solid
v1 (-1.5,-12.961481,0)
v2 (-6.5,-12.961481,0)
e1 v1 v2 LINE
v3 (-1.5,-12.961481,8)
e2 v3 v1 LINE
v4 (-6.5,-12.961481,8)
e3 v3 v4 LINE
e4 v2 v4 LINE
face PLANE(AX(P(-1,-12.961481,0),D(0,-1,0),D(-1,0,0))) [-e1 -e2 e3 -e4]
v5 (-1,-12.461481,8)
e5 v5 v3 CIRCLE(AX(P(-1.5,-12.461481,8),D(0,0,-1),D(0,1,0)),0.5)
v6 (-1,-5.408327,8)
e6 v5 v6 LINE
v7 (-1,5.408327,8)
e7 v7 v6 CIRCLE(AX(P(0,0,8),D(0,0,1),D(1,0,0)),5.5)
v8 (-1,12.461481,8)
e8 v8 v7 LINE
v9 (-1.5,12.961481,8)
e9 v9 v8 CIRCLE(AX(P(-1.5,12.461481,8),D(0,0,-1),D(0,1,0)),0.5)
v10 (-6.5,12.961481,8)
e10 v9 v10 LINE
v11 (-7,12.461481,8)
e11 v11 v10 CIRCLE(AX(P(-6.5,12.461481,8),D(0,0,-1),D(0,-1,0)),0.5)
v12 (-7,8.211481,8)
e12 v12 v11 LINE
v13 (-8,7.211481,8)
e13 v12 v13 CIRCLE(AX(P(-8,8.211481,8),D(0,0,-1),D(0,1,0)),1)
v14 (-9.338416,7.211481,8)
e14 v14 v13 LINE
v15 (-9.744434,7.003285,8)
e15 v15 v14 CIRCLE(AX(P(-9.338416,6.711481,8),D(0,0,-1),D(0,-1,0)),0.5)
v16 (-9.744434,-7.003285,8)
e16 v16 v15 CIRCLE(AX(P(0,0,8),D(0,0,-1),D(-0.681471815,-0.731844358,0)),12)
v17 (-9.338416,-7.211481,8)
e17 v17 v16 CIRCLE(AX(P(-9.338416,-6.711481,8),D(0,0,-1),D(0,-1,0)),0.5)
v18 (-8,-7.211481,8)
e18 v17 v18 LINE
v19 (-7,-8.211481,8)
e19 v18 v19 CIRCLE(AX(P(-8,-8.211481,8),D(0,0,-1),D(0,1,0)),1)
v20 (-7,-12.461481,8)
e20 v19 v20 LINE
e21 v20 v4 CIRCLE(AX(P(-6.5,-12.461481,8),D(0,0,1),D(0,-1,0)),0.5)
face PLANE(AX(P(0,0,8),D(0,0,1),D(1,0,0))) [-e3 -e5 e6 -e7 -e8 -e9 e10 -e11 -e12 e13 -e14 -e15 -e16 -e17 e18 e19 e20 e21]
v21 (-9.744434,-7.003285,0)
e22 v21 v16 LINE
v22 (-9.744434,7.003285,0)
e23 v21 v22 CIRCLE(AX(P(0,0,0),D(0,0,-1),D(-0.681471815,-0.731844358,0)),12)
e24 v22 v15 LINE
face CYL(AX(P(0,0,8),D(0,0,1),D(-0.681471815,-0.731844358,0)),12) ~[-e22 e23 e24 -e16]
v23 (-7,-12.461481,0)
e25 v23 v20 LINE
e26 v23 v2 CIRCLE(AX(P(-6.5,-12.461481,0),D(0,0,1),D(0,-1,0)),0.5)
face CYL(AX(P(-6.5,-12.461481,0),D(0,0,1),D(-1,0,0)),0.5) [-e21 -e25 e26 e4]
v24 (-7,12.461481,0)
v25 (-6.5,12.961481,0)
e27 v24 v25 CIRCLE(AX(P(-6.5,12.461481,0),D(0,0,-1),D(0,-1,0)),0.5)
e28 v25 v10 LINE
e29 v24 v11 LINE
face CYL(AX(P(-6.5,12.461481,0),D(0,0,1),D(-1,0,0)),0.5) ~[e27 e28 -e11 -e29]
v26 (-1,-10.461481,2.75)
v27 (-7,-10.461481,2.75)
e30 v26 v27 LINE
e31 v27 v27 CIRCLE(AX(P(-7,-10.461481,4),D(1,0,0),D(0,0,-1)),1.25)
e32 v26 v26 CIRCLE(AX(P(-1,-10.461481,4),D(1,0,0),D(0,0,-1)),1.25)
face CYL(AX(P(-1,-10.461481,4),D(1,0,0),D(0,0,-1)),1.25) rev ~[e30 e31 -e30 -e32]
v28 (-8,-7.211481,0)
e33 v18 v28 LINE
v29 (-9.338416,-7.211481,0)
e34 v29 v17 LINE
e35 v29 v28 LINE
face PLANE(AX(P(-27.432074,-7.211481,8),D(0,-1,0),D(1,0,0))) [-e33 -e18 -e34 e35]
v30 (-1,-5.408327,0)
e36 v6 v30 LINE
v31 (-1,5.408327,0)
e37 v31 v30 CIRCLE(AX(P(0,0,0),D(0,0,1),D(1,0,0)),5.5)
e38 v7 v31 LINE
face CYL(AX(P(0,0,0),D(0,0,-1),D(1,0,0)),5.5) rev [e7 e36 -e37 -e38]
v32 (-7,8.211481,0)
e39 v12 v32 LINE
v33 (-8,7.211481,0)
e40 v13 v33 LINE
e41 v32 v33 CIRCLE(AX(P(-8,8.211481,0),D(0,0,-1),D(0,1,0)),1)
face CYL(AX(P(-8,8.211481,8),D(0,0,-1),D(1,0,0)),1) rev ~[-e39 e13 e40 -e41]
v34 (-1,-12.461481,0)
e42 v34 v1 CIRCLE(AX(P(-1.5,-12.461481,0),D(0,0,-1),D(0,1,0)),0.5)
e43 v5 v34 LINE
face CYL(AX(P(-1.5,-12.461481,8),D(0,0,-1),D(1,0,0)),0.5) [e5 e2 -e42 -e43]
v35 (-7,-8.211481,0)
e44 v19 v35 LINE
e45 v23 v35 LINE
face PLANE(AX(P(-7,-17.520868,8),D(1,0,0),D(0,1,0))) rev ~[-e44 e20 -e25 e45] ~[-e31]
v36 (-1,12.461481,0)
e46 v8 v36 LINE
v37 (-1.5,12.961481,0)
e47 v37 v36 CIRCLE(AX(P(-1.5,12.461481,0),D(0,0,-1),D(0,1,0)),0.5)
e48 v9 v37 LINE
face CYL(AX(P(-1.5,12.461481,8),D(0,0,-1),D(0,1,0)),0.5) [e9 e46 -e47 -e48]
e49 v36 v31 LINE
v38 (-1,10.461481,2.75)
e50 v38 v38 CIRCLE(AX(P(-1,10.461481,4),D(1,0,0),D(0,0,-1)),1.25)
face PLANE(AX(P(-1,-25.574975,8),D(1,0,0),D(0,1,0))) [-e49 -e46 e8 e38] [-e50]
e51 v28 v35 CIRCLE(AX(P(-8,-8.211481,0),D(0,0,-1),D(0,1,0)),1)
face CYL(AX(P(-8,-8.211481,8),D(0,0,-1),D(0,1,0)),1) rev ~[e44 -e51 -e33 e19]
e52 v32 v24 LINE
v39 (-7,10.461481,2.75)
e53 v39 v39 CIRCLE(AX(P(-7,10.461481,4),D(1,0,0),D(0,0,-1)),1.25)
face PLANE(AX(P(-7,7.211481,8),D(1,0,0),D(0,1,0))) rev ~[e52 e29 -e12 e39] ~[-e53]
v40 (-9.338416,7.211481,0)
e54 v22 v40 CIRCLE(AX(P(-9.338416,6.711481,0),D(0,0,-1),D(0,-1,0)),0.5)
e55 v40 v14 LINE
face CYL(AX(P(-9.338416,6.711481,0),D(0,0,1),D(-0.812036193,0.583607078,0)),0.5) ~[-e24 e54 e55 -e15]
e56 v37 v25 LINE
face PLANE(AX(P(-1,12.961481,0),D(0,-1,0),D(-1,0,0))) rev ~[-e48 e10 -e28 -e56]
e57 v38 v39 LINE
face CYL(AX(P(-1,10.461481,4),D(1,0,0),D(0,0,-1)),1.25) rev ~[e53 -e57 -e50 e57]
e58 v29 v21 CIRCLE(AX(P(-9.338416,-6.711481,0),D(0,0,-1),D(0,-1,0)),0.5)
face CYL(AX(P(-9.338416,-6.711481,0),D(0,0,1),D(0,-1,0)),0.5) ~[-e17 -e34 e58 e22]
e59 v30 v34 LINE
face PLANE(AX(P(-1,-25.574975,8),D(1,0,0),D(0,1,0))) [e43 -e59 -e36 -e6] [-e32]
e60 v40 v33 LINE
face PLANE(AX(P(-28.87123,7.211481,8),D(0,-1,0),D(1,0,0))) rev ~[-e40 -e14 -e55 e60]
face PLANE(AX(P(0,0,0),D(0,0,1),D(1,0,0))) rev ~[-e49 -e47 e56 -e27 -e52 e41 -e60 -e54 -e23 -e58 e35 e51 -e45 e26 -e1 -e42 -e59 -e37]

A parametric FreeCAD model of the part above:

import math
import FreeCAD as App
import Part
import Sketcher
from FreeCAD import Vector
Q = App.Units.Quantity


def edges_at(feature, points):
    """Names of the edges that pass closest to the given points."""
    edges = feature.Shape.Edges
    near = lambda p: min(range(len(edges)), key=lambda i: edges[i].distToShape(Part.Vertex(*p))[0])
    return sorted({f"Edge{near(p) + 1}" for p in points})


def add_polygon(sketch, points):
    """Adds a closed chain of lines whose ends are joined by coincident constraints."""
    first, n = sketch.GeometryCount, len(points)
    for a, b in zip(points, points[1:] + points[:1]):
        sketch.addGeometry(Part.LineSegment(App.Vector(*a, 0), App.Vector(*b, 0)), False)
    for i in range(n):
        sketch.addConstraint(Sketcher.Constraint("Coincident", first + i, 2, first + (i + 1) % n, 1))

doc = App.newDocument("Part")
body = doc.addObject("PartDesign::Body", "Body")

# Sketch on XY plane
sketch1 = body.newObject("Sketcher::SketchObject", "Sketch")
sketch1.AttachmentSupport = (doc.getObject("XY_Plane"), [""])
sketch1.MapMode = "FlatFace"
sketch1.addGeometry([
    Part.Circle(Vector(0, 0, 0), Vector(0, 0, 1), 13),
    Part.Circle(Vector(0, 0, 0), Vector(0, 0, 1), 5.5),
], False)
sketch1.addConstraint([
    Sketcher.Constraint("Coincident", 0, 3, -1, 1),
    Sketcher.Constraint("Coincident", 1, 3, -1, 1),
    Sketcher.Constraint("Diameter", 0, Q("26 mm")),
    Sketcher.Constraint("Diameter", 1, Q("11 mm")),
])
pad1 = body.newObject("PartDesign::Pad", "Pad")
pad1.Profile = sketch1
pad1.Length = 8

# Sketch on XY plane
sketch2 = body.newObject("Sketcher::SketchObject", "Sketch001")
sketch2.AttachmentSupport = (doc.getObject("XY_Plane"), [""])
sketch2.MapMode = "FlatFace"
sketch2.AttachmentOffset = App.Placement(Vector(0, 0, 8), App.Rotation())
add_polygon(sketch2, [(-1, 24.243167), (-1, -25.574975), (31.310046, -25.574975), (31.310046, 24.243167)])  # lines 0-3
sketch2.addConstraint([
    Sketcher.Constraint("Vertical", 0),
    Sketcher.Constraint("Horizontal", 1),
    Sketcher.Constraint("Vertical", 2),
    Sketcher.Constraint("Horizontal", 3),
    Sketcher.Constraint("DistanceX", 0, 2, -1, 1, Q("1 mm")),
    Sketcher.Constraint("DistanceY", 0, 2, 0, 1, Q("49.818142 mm")),
    Sketcher.Constraint("DistanceX", 1, 1, 1, 2, Q("32.310046 mm")),
    Sketcher.Constraint("DistanceY", 0, 2, -1, 1, Q("25.574975 mm")),
])
pocket1 = body.newObject("PartDesign::Pocket", "Pocket")
pocket1.Profile = sketch2
pocket1.Length = 8

# Sketch on YZ plane
sketch3 = body.newObject("Sketcher::SketchObject", "Sketch002")
sketch3.AttachmentSupport = (doc.getObject("YZ_Plane"), [""])
sketch3.MapMode = "FlatFace"
sketch3.AttachmentOffset = App.Placement(Vector(0, 0, -1), App.Rotation())
sketch3.addGeometry([
    Part.Circle(Vector(10.461481, 4, 0), Vector(0, 0, 1), 1.5),
    Part.Circle(Vector(-10.461481, 4, 0), Vector(0, 0, 1), 1.5),
], False)
sketch3.addConstraint([
    Sketcher.Constraint("Equal", 0, 1),
    Sketcher.Constraint("Symmetric", 0, 3, 1, 3, -2),
    Sketcher.Constraint("Diameter", 0, Q("3 mm")),
    Sketcher.Constraint("DistanceY", -1, 1, 0, 3, Q("4 mm")),
    Sketcher.Constraint("DistanceX", -1, 1, 0, 3, Q("10.461481 mm")),
])
pocket2 = body.newObject("PartDesign::Pocket", "Pocket001")
pocket2.Profile = sketch3
pocket2.Length = 8

# Sketch on XY plane
sketch4 = body.newObject("Sketcher::SketchObject", "Sketch003")
sketch4.AttachmentSupport = (doc.getObject("XY_Plane"), [""])
sketch4.MapMode = "FlatFace"
sketch4.AttachmentOffset = App.Placement(Vector(0, 0, 8), App.Rotation())
add_polygon(sketch4, [(-28.87123, 21.044491), (-28.87123, 7.211481), (-7, 7.211481), (-7, 21.044491)])  # lines 0-3
add_polygon(sketch4, [(-27.432074, -7.211481), (-27.432074, -17.520868), (-7, -17.520868), (-7, -7.211481)])  # lines 4-7
sketch4.addConstraint([
    Sketcher.Constraint("Vertical", 0),
    Sketcher.Constraint("Horizontal", 1),
    Sketcher.Constraint("Vertical", 2),
    Sketcher.Constraint("Horizontal", 3),
    Sketcher.Constraint("Vertical", 4),
    Sketcher.Constraint("Horizontal", 5),
    Sketcher.Constraint("Vertical", 6),
    Sketcher.Constraint("Horizontal", 7),
    Sketcher.Constraint("Symmetric", 1, 2, 6, 2, -1),
    Sketcher.Constraint("DistanceX", 1, 2, -1, 1, Q("7 mm")),
    Sketcher.Constraint("DistanceX", 1, 1, 1, 2, Q("21.87123 mm")),
    Sketcher.Constraint("DistanceY", 0, 2, 0, 1, Q("13.83301 mm")),
    Sketcher.Constraint("DistanceX", 5, 1, 5, 2, Q("20.432074 mm")),
    Sketcher.Constraint("DistanceY", 4, 2, 4, 1, Q("10.309386 mm")),
    Sketcher.Constraint("DistanceY", -1, 1, 0, 2, Q("7.211481 mm")),
])
pocket3 = body.newObject("PartDesign::Pocket", "Pocket002")
pocket3.Profile = sketch4
pocket3.Length = 8

# Sketch on XY plane
sketch5 = body.newObject("Sketcher::SketchObject", "Sketch004")
sketch5.AttachmentSupport = (doc.getObject("XY_Plane"), [""])
sketch5.MapMode = "FlatFace"
sketch5.AttachmentOffset = App.Placement(Vector(0, 0, 8), App.Rotation())
sketch5.addGeometry([
    Part.LineSegment(Vector(-16.733633, -12.244868, 0), Vector(-8.177662, -8.782132, 0)),
    Part.ArcOfCircle(Part.Circle(Vector(0, 0, 0), Vector(0, 0, 1), 12), math.radians(130.507289), math.radians(227.041237)),
    Part.LineSegment(Vector(-7.794537, 9.12388, 0), Vector(-13.177897, 8.696922, 0)),
    Part.ArcOfCircle(Part.Circle(Vector(-5.963091, -3.300852, 0), Vector(0, 0, 1), 14), math.radians(121.020403), math.radians(219.706736)),
], False)
sketch5.addConstraint([
    Sketcher.Constraint("Coincident", 0, 2, 1, 2),
    Sketcher.Constraint("Coincident", 1, 1, 2, 1),
    Sketcher.Constraint("Coincident", 2, 2, 3, 1),
    Sketcher.Constraint("Coincident", 3, 2, 0, 1),
    Sketcher.Constraint("Coincident", 1, 3, -1, 1),
    Sketcher.Constraint("Radius", 1, Q("12 mm")),
    Sketcher.Constraint("Radius", 3, Q("14 mm")),
    Sketcher.Constraint("DistanceX", 3, 3, -1, 1, Q("5.963091 mm")),
    Sketcher.Constraint("DistanceY", 3, 3, -1, 1, Q("3.300852 mm")),
    Sketcher.Constraint("DistanceX", 0, 2, -1, 1, Q("8.177662 mm")),
    Sketcher.Constraint("DistanceY", -1, 1, 1, 1, Q("9.12388 mm")),
    Sketcher.Constraint("DistanceX", 2, 2, 1, 1, Q("5.38336 mm")),
    Sketcher.Constraint("DistanceX", 3, 2, 0, 2, Q("8.555972 mm")),
])
pocket4 = body.newObject("PartDesign::Pocket", "Pocket003")
pocket4.Profile = sketch5
pocket4.Length = 8
doc.recompute()

fillet = body.newObject("PartDesign::Fillet", "Fillet")
fillet.Base = (pocket4, edges_at(pocket4, [(-9.591, 7.211, 4), (-9.591, -7.211, 4)]))
fillet.Radius = 0.5

# Sketch on XY plane
sketch6 = body.newObject("Sketcher::SketchObject", "Sketch005")
sketch6.AttachmentSupport = (doc.getObject("XY_Plane"), [""])
sketch6.MapMode = "FlatFace"
add_polygon(sketch6, [(-1, 12.961481), (-1, 7.211481), (-7, 7.211481), (-7, 12.961481)])  # lines 0-3
add_polygon(sketch6, [(-1, -7.211481), (-1, -12.961481), (-7, -12.961481), (-7, -7.211481)])  # lines 4-7
sketch6.addConstraint([
    Sketcher.Constraint("Vertical", 0),
    Sketcher.Constraint("Horizontal", 1),
    Sketcher.Constraint("Vertical", 2),
    Sketcher.Constraint("Horizontal", 3),
    Sketcher.Constraint("Vertical", 4),
    Sketcher.Constraint("Horizontal", 5),
    Sketcher.Constraint("Vertical", 6),
    Sketcher.Constraint("Horizontal", 7),
    Sketcher.Constraint("Symmetric", 3, 2, 4, 2, -1),
    Sketcher.Constraint("Symmetric", 1, 2, 6, 2, -1),
    Sketcher.Constraint("DistanceX", 1, 2, 1, 1, Q("6 mm")),
    Sketcher.Constraint("DistanceX", 0, 2, -1, 1, Q("1 mm")),
    Sketcher.Constraint("DistanceY", 0, 2, 0, 1, Q("5.75 mm")),
    Sketcher.Constraint("DistanceY", -1, 1, 0, 2, Q("7.211481 mm")),
])
pad2 = body.newObject("PartDesign::Pad", "Pad001")
pad2.Profile = sketch6
pad2.Length = 8

# Sketch on YZ plane
sketch7 = body.newObject("Sketcher::SketchObject", "Sketch006")
sketch7.AttachmentSupport = (doc.getObject("YZ_Plane"), [""])
sketch7.MapMode = "FlatFace"
sketch7.AttachmentOffset = App.Placement(Vector(0, 0, -1), App.Rotation())
sketch7.addGeometry([
    Part.Circle(Vector(10.461481, 4, 0), Vector(0, 0, 1), 1.25),
    Part.Circle(Vector(-10.461481, 4, 0), Vector(0, 0, 1), 1.25),
], False)
sketch7.addConstraint([
    Sketcher.Constraint("Equal", 0, 1),
    Sketcher.Constraint("Symmetric", 0, 3, 1, 3, -2),
    Sketcher.Constraint("Diameter", 0, Q("2.5 mm")),
    Sketcher.Constraint("DistanceY", -1, 1, 0, 3, Q("4 mm")),
    Sketcher.Constraint("DistanceX", -1, 1, 0, 3, Q("10.461481 mm")),
])
pocket5 = body.newObject("PartDesign::Pocket", "Pocket004")
pocket5.Profile = sketch7
pocket5.Length = 8
doc.recompute()

fillet2 = body.newObject("PartDesign::Fillet", "Fillet001")
fillet2.Base = (pocket5, edges_at(pocket5, [(-7, 12.961, 4), (-7, -12.961, 4)]))
fillet2.Radius = 0.5
doc.recompute()

fillet3 = body.newObject("PartDesign::Fillet", "Fillet002")
fillet3.Base = (fillet2, edges_at(fillet2, [(-7, 7.211, 4), (-7, -7.211, 4)]))
fillet3.Radius = 1
doc.recompute()

fillet4 = body.newObject("PartDesign::Fillet", "Fillet003")
fillet4.Base = (fillet3, edges_at(fillet3, [(-1, 12.961, 4), (-1, -12.961, 4)]))
fillet4.Radius = 0.5

doc.recompute()
